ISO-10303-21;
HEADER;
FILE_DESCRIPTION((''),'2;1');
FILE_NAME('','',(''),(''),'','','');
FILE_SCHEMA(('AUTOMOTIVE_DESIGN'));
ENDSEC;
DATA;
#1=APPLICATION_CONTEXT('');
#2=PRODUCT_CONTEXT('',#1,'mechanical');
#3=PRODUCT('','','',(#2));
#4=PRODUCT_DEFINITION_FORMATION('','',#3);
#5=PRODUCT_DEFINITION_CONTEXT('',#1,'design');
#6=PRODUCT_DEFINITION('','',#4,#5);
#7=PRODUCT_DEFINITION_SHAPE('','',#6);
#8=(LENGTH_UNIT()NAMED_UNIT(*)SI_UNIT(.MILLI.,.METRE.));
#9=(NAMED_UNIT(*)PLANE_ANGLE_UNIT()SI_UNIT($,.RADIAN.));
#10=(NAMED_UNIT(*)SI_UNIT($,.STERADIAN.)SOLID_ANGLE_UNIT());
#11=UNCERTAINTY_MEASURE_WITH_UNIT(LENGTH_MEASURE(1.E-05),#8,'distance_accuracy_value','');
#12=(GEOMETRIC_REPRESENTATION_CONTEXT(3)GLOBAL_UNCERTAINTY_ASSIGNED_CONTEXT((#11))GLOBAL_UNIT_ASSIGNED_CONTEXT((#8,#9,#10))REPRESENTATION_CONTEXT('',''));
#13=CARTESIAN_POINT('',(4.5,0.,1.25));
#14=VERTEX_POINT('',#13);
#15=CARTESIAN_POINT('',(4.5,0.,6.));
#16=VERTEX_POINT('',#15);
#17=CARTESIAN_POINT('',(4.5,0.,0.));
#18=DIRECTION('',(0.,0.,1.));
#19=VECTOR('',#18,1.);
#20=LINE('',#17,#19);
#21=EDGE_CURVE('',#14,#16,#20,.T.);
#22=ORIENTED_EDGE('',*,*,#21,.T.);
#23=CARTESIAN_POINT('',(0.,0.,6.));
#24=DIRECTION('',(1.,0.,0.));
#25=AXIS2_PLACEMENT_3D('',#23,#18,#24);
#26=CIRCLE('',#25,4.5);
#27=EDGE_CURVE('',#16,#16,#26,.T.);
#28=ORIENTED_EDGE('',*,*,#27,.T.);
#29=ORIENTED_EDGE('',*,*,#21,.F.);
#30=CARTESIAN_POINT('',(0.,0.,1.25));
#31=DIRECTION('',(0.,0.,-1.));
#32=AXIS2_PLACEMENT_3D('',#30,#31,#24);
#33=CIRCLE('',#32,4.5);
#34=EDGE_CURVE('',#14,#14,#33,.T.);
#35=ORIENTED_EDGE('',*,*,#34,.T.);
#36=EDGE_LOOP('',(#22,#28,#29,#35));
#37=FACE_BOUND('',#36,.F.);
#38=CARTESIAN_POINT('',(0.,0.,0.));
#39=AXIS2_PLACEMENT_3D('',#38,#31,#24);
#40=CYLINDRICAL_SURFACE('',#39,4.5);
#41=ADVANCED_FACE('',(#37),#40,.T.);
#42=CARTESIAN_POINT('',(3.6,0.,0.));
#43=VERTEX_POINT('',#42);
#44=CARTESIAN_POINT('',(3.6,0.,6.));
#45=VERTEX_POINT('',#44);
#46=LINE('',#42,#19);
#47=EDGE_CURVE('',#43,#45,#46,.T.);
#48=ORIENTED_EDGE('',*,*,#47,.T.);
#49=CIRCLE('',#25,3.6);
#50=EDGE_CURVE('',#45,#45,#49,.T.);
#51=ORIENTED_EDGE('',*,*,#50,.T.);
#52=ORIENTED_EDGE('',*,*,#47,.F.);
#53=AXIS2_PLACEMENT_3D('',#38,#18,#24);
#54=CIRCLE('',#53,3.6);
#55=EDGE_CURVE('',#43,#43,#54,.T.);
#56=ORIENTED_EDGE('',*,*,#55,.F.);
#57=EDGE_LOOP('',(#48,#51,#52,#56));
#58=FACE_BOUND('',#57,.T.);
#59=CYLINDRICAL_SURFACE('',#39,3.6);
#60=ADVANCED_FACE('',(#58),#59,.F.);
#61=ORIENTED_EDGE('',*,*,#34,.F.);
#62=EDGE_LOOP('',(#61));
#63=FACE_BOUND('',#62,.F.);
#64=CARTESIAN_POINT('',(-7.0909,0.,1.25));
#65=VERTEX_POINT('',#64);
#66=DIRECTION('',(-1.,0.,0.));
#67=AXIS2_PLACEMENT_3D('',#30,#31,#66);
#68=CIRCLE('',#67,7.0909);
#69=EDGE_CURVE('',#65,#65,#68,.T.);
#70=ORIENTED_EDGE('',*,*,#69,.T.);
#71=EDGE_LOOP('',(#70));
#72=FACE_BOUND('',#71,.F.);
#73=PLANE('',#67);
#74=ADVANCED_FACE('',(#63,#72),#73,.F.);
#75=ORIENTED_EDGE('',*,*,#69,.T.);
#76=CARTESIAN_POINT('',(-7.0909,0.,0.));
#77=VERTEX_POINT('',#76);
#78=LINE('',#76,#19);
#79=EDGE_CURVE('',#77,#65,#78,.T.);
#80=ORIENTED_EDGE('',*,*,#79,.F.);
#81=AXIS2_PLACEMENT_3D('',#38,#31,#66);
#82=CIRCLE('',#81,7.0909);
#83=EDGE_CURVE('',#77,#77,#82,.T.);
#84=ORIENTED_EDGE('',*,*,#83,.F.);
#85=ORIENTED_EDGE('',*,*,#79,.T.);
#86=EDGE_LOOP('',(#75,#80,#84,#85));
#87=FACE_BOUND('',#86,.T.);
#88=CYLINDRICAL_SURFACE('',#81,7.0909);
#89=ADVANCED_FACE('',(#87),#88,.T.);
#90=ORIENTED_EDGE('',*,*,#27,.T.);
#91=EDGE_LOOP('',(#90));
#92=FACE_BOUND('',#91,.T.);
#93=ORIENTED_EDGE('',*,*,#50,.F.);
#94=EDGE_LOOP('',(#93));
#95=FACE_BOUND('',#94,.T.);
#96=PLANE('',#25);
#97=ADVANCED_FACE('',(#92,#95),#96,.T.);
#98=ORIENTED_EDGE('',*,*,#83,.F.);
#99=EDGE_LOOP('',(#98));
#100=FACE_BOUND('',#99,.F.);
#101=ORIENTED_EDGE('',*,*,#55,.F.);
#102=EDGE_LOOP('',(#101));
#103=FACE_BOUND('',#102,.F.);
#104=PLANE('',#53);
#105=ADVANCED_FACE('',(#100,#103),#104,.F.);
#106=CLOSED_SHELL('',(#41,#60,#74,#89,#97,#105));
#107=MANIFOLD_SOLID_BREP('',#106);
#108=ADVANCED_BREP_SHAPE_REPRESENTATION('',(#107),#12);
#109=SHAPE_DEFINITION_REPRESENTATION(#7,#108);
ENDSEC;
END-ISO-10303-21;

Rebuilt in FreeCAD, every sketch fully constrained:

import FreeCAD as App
import Part
import Sketcher
Q = App.Units.Quantity

doc = App.newDocument("Part")
body = doc.addObject("PartDesign::Body", "Body")

# Sketch on XY plane
sketch1 = body.newObject("Sketcher::SketchObject", "Sketch")
sketch1.AttachmentSupport = (doc.getObject("XY_Plane"), [""])
sketch1.MapMode = "FlatFace"
sketch1.addGeometry([
    Part.Circle(App.Vector(0, 0, 0), App.Vector(0, 0, 1), 4.5),
    Part.Circle(App.Vector(0, 0, 0), App.Vector(0, 0, 1), 3.6),
], False)
sketch1.addConstraint([
    Sketcher.Constraint("Coincident", 0, 3, -1, 1),
    Sketcher.Constraint("Coincident", 1, 3, -1, 1),
    Sketcher.Constraint("Diameter", 0, Q("9 mm")),
    Sketcher.Constraint("Diameter", 1, Q("7.2 mm")),
])
pad1 = body.newObject("PartDesign::Pad", "Pad")
pad1.Profile = sketch1
pad1.Length = 6

# Sketch on XY plane
sketch2 = body.newObject("Sketcher::SketchObject", "Sketch001")
sketch2.AttachmentSupport = (doc.getObject("XY_Plane"), [""])
sketch2.MapMode = "FlatFace"
sketch2.addGeometry([
    Part.Circle(App.Vector(0, 0, 0), App.Vector(0, 0, 1), 7.1),
    Part.Circle(App.Vector(0, 0, 0), App.Vector(0, 0, 1), 3.6),
], False)
sketch2.addConstraint([
    Sketcher.Constraint("Coincident", 0, 3, -1, 1),
    Sketcher.Constraint("Coincident", 1, 3, -1, 1),
    Sketcher.Constraint("Diameter", 1, Q("7.2 mm")),
    Sketcher.Constraint("Diameter", 0, Q("14.1818 mm")),
])
pad2 = body.newObject("PartDesign::Pad", "Pad001")
pad2.Profile = sketch2
pad2.Length = 1.25

doc.recompute()
